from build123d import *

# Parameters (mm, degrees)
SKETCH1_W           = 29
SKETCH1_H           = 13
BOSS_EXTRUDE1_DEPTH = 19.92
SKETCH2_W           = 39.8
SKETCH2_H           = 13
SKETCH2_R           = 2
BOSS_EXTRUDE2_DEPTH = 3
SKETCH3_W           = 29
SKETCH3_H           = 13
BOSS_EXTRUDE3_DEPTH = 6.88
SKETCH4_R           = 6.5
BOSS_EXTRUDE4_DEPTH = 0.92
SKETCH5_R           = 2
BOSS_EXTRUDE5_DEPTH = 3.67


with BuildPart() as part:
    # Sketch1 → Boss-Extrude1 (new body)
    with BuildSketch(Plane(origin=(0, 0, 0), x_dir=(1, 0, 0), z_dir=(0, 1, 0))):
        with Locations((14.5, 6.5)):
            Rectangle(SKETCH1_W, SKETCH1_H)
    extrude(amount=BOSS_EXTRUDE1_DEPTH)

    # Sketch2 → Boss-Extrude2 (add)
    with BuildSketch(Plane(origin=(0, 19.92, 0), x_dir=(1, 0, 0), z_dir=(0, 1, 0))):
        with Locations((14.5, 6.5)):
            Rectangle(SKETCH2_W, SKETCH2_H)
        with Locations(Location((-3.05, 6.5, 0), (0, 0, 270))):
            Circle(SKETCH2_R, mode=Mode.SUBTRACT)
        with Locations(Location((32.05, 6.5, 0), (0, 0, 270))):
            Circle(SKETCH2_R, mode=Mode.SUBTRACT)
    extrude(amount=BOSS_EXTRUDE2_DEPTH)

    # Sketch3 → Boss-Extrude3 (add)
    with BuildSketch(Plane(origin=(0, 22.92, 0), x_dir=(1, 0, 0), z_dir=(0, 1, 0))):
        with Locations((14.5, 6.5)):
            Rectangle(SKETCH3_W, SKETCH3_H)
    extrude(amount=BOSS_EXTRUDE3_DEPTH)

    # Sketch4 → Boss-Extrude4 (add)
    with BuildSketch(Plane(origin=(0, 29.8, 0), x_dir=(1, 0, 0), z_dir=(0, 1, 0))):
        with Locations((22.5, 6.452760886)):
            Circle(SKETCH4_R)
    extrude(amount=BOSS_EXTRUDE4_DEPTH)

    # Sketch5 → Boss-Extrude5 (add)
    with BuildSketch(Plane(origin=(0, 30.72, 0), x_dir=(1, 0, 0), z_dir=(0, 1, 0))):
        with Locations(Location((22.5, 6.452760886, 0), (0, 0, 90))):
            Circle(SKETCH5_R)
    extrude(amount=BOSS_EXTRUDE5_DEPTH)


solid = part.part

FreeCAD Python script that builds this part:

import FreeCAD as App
import Part
import Sketcher
from FreeCAD import Vector

doc = App.newDocument("Part")
body = doc.addObject("PartDesign::Body", "Body")

sketch1 = doc.addObject("Sketcher::SketchObject", "Sketch")
body.addObject(sketch1)
sketch1.AttachmentSupport = (doc.XZ_Plane, [""])
sketch1.MapMode = "FlatFace"
sketch1.addGeometry(Part.LineSegment(Vector(0, -13, 0), Vector(0, 0, 0)), False)
sketch1.addGeometry(Part.LineSegment(Vector(0, 0, 0), Vector(29, 0, 0)), False)
sketch1.addGeometry(Part.LineSegment(Vector(29, 0, 0), Vector(29, -13, 0)), False)
sketch1.addGeometry(Part.LineSegment(Vector(29, -13, 0), Vector(0, -13, 0)), False)
sketch1.addConstraint(Sketcher.Constraint("Coincident", 0, 2, 1, 1))
sketch1.addConstraint(Sketcher.Constraint("Coincident", 1, 2, 2, 1))
sketch1.addConstraint(Sketcher.Constraint("Coincident", 2, 2, 3, 1))
sketch1.addConstraint(Sketcher.Constraint("Coincident", 3, 2, 0, 1))
sketch1.addConstraint(Sketcher.Constraint("Vertical", 0))
sketch1.addConstraint(Sketcher.Constraint("Horizontal", 1))
sketch1.addConstraint(Sketcher.Constraint("Vertical", 2))
sketch1.addConstraint(Sketcher.Constraint("Horizontal", 3))
sketch1.addConstraint(Sketcher.Constraint("Coincident", 0, 2, -1, 1))
sketch1.addConstraint(Sketcher.Constraint("DistanceX", 1, 1, 1, 2, 29.0))
sketch1.addConstraint(Sketcher.Constraint("DistanceY", 0, 1, 0, 2, 13.0))
pad1 = doc.addObject("PartDesign::Pad", "Pad")
body.addObject(pad1)
pad1.Profile = sketch1
pad1.Length = 19.92
pad1.Reversed = True

sketch2 = doc.addObject("Sketcher::SketchObject", "Sketch001")
body.addObject(sketch2)
sketch2.AttachmentSupport = (doc.XZ_Plane, [""])
sketch2.MapMode = "FlatFace"
sketch2.AttachmentOffset = App.Placement(Vector(0, 0, -19.92), App.Rotation())
sketch2.addGeometry(Part.LineSegment(Vector(-5.4, -13, 0), Vector(-5.4, 0, 0)), False)
sketch2.addGeometry(Part.LineSegment(Vector(-5.4, 0, 0), Vector(34.4, 0, 0)), False)
sketch2.addGeometry(Part.LineSegment(Vector(34.4, 0, 0), Vector(34.4, -13, 0)), False)
sketch2.addGeometry(Part.LineSegment(Vector(34.4, -13, 0), Vector(-5.4, -13, 0)), False)
sketch2.addGeometry(Part.Circle(Vector(-3, -6.5, 0), Vector(0, 0, 1), 2), False)
sketch2.addGeometry(Part.Circle(Vector(32, -6.5, 0), Vector(0, 0, 1), 2), False)
sketch2.addConstraint(Sketcher.Constraint("Coincident", 0, 2, 1, 1))
sketch2.addConstraint(Sketcher.Constraint("Coincident", 1, 2, 2, 1))
sketch2.addConstraint(Sketcher.Constraint("Coincident", 2, 2, 3, 1))
sketch2.addConstraint(Sketcher.Constraint("Coincident", 3, 2, 0, 1))
sketch2.addConstraint(Sketcher.Constraint("Vertical", 0))
sketch2.addConstraint(Sketcher.Constraint("Horizontal", 1))
sketch2.addConstraint(Sketcher.Constraint("Vertical", 2))
sketch2.addConstraint(Sketcher.Constraint("Horizontal", 3))
sketch2.addConstraint(Sketcher.Constraint("Equal", 4, 5))
sketch2.addConstraint(Sketcher.Constraint("PointOnObject", 0, 2, -1))
sketch2.addConstraint(Sketcher.Constraint("Horizontal", 4, 3, 5, 3))
sketch2.addConstraint(Sketcher.Constraint("Diameter", 4, 4.0))
sketch2.addConstraint(Sketcher.Constraint("DistanceY", 0, 1, 0, 2, 13.0))
sketch2.addConstraint(Sketcher.Constraint("DistanceX", 1, 1, 1, 2, 39.8))
sketch2.addConstraint(Sketcher.Constraint("DistanceY", 4, 3, -1, 1, 6.5))
sketch2.addConstraint(Sketcher.Constraint("DistanceX", 0, 2, -1, 1, 5.4))
sketch2.addConstraint(Sketcher.Constraint("DistanceX", 4, 3, 5, 3, 35.1))
sketch2.addConstraint(Sketcher.Constraint("DistanceX", 4, 3, -1, 1, 3.05))
pad2 = doc.addObject("PartDesign::Pad", "Pad001")
body.addObject(pad2)
pad2.Profile = sketch2
pad2.Length = 3
pad2.Reversed = True

sketch3 = doc.addObject("Sketcher::SketchObject", "Sketch002")
body.addObject(sketch3)
sketch3.AttachmentSupport = (doc.XZ_Plane, [""])
sketch3.MapMode = "FlatFace"
sketch3.AttachmentOffset = App.Placement(Vector(0, 0, -22.92), App.Rotation())
sketch3.addGeometry(Part.LineSegment(Vector(0, -13, 0), Vector(0, 0, 0)), False)
sketch3.addGeometry(Part.LineSegment(Vector(0, 0, 0), Vector(29, 0, 0)), False)
sketch3.addGeometry(Part.LineSegment(Vector(29, 0, 0), Vector(29, -13, 0)), False)
sketch3.addGeometry(Part.LineSegment(Vector(29, -13, 0), Vector(0, -13, 0)), False)
sketch3.addConstraint(Sketcher.Constraint("Coincident", 0, 2, 1, 1))
sketch3.addConstraint(Sketcher.Constraint("Coincident", 1, 2, 2, 1))
sketch3.addConstraint(Sketcher.Constraint("Coincident", 2, 2, 3, 1))
sketch3.addConstraint(Sketcher.Constraint("Coincident", 3, 2, 0, 1))
sketch3.addConstraint(Sketcher.Constraint("Vertical", 0))
sketch3.addConstraint(Sketcher.Constraint("Horizontal", 1))
sketch3.addConstraint(Sketcher.Constraint("Vertical", 2))
sketch3.addConstraint(Sketcher.Constraint("Horizontal", 3))
sketch3.addConstraint(Sketcher.Constraint("Coincident", 0, 2, -1, 1))
sketch3.addConstraint(Sketcher.Constraint("DistanceX", 1, 1, 1, 2, 29.0))
sketch3.addConstraint(Sketcher.Constraint("DistanceY", 0, 1, 0, 2, 13.0))
pad3 = doc.addObject("PartDesign::Pad", "Pad002")
body.addObject(pad3)
pad3.Profile = sketch3
pad3.Length = 6.88
pad3.Reversed = True

sketch4 = doc.addObject("Sketcher::SketchObject", "Sketch003")
body.addObject(sketch4)
sketch4.AttachmentSupport = (doc.XZ_Plane, [""])
sketch4.MapMode = "FlatFace"
sketch4.AttachmentOffset = App.Placement(Vector(0, 0, -29.8), App.Rotation())
sketch4.addGeometry(Part.Circle(Vector(22, -6, 0), Vector(0, 0, 1), 6), False)
sketch4.addConstraint(Sketcher.Constraint("Diameter", 0, 13.0))
sketch4.addConstraint(Sketcher.Constraint("DistanceX", -1, 1, 0, 3, 22.5))
sketch4.addConstraint(Sketcher.Constraint("DistanceY", 0, 3, -1, 1, 6.452761))
pad4 = doc.addObject("PartDesign::Pad", "Pad003")
body.addObject(pad4)
pad4.Profile = sketch4
pad4.Length = 0.92
pad4.Reversed = True

sketch5 = doc.addObject("Sketcher::SketchObject", "Sketch004")
body.addObject(sketch5)
sketch5.AttachmentSupport = (doc.XZ_Plane, [""])
sketch5.MapMode = "FlatFace"
sketch5.AttachmentOffset = App.Placement(Vector(0, 0, -30.72), App.Rotation())
sketch5.addGeometry(Part.Circle(Vector(22.5, -6.5, 0), Vector(0, 0, 1), 2), False)
sketch5.addConstraint(Sketcher.Constraint("Diameter", 0, 4.0))
sketch5.addConstraint(Sketcher.Constraint("DistanceX", -1, 1, 0, 3, 22.5))
sketch5.addConstraint(Sketcher.Constraint("DistanceY", 0, 3, -1, 1, 6.452761))
pad5 = doc.addObject("PartDesign::Pad", "Pad004")
body.addObject(pad5)
pad5.Profile = sketch5
pad5.Length = 3.67
pad5.Reversed = True

doc.recompute()
